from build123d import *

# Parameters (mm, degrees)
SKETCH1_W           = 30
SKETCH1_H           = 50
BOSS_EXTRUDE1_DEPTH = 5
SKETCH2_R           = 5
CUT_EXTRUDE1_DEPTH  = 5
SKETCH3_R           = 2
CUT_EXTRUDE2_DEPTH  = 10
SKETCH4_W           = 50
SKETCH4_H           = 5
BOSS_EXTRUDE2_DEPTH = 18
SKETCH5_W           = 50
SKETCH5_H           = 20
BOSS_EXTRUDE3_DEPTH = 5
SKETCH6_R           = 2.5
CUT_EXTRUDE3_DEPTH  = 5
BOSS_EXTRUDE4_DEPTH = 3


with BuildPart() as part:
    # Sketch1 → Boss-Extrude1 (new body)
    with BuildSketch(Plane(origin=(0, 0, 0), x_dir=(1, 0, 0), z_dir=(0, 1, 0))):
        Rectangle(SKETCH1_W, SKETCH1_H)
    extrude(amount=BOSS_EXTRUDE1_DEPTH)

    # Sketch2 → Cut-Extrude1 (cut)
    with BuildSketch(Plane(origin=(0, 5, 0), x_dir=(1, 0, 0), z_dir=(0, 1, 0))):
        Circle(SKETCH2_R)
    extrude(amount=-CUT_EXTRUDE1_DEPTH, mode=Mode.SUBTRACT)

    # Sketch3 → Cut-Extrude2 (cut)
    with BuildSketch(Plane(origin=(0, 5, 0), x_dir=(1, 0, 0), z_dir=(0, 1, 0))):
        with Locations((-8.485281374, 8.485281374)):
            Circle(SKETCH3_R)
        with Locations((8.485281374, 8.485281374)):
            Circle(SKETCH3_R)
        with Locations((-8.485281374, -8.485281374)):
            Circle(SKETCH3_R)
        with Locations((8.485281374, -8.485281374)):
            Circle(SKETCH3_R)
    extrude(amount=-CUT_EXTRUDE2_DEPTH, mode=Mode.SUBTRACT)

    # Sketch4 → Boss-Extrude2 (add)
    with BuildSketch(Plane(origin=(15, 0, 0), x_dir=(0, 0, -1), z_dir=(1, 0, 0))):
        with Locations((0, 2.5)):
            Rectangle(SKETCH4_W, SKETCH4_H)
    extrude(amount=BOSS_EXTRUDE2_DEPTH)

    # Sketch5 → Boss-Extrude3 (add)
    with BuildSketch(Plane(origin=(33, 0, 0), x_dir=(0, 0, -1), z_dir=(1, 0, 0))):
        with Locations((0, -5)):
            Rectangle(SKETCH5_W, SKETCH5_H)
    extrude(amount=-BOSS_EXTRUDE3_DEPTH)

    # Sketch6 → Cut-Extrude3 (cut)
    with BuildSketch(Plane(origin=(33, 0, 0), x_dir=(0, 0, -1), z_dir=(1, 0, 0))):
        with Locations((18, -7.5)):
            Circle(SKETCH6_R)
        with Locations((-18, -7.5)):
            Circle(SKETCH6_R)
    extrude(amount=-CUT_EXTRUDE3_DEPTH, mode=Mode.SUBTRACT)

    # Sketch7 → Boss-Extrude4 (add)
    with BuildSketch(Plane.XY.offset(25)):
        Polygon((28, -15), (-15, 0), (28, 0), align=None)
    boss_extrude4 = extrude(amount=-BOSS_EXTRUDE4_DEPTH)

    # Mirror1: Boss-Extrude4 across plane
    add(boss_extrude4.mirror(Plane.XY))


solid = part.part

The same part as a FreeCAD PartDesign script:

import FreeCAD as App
import Part
import Sketcher

V = App.Vector
Q = App.Units.Quantity


def add_polygon(sketch, points):
    """Adds a closed chain of lines whose ends are joined by coincident constraints."""
    first, n = sketch.GeometryCount, len(points)
    for a, b in zip(points, points[1:] + points[:1]):
        sketch.addGeometry(Part.LineSegment(App.Vector(*a, 0), App.Vector(*b, 0)), False)
    for i in range(n):
        sketch.addConstraint(Sketcher.Constraint("Coincident", first + i, 2, first + (i + 1) % n, 1))

doc = App.newDocument("Part")
body = doc.addObject("PartDesign::Body", "Body")

# Sketch on XZ plane
sketch1 = doc.addObject("Sketcher::SketchObject", "Sketch")
body.addObject(sketch1)
sketch1.AttachmentSupport = (doc.XZ_Plane, [""])
sketch1.MapMode = "FlatFace"
add_polygon(sketch1, [(-15, -25), (-15, 25), (15, 25), (15, -25)])  # lines 0-3
sketch1.addConstraint(Sketcher.Constraint("Vertical", 0))
sketch1.addConstraint(Sketcher.Constraint("Horizontal", 1))
sketch1.addConstraint(Sketcher.Constraint("Vertical", 2))
sketch1.addConstraint(Sketcher.Constraint("Horizontal", 3))
sketch1.addConstraint(Sketcher.Constraint("Symmetric", 0, 2, 2, 2, -1, 1))
sketch1.addConstraint(Sketcher.Constraint("DistanceX", 1, 1, 1, 2, Q("30 mm")))
sketch1.addConstraint(Sketcher.Constraint("DistanceY", 0, 1, 0, 2, Q("50 mm")))
pad1 = doc.addObject("PartDesign::Pad", "Pad")
body.addObject(pad1)
pad1.Profile = sketch1
pad1.Length = 5
pad1.Reversed = True

# Sketch on XZ plane
sketch2 = doc.addObject("Sketcher::SketchObject", "Sketch001")
body.addObject(sketch2)
sketch2.AttachmentSupport = (doc.XZ_Plane, [""])
sketch2.MapMode = "FlatFace"
sketch2.AttachmentOffset = App.Placement(V(0, 0, -5), App.Rotation())
sketch2.addGeometry(Part.Circle(V(0, 0, 0), V(0, 0, 1), 5), False)
sketch2.addConstraint(Sketcher.Constraint("Coincident", 0, 3, -1, 1))
sketch2.addConstraint(Sketcher.Constraint("Diameter", 0, Q("10 mm")))
pocket1 = doc.addObject("PartDesign::Pocket", "Pocket")
body.addObject(pocket1)
pocket1.Profile = sketch2
pocket1.Length = 5
pocket1.Reversed = True

# Sketch on XZ plane
sketch3 = doc.addObject("Sketcher::SketchObject", "Sketch002")
body.addObject(sketch3)
sketch3.AttachmentSupport = (doc.XZ_Plane, [""])
sketch3.MapMode = "FlatFace"
sketch3.AttachmentOffset = App.Placement(V(0, 0, -5), App.Rotation())
sketch3.addGeometry(Part.Circle(V(-8.5, -8.5, 0), V(0, 0, 1), 2), False)
sketch3.addGeometry(Part.Circle(V(8.5, -8.5, 0), V(0, 0, 1), 2), False)
sketch3.addGeometry(Part.Circle(V(-8.5, 8.5, 0), V(0, 0, 1), 2), False)
sketch3.addGeometry(Part.Circle(V(8.5, 8.5, 0), V(0, 0, 1), 2), False)
sketch3.addConstraint(Sketcher.Constraint("Equal", 0, 1))
sketch3.addConstraint(Sketcher.Constraint("Equal", 1, 2))
sketch3.addConstraint(Sketcher.Constraint("Equal", 2, 3))
sketch3.addConstraint(Sketcher.Constraint("Symmetric", 1, 3, 2, 3, -1, 1))
sketch3.addConstraint(Sketcher.Constraint("Symmetric", 0, 3, 3, 3, -1, 1))
sketch3.addConstraint(Sketcher.Constraint("Symmetric", 0, 3, 1, 3, -2))
sketch3.addConstraint(Sketcher.Constraint("Diameter", 0, Q("4 mm")))
sketch3.addConstraint(Sketcher.Constraint("DistanceX", 0, 3, -1, 1, Q("8.485281 mm")))
sketch3.addConstraint(Sketcher.Constraint("DistanceY", 0, 3, -1, 1, Q("8.485281 mm")))
pocket2 = doc.addObject("PartDesign::Pocket", "Pocket001")
body.addObject(pocket2)
pocket2.Profile = sketch3
pocket2.Length = 10
pocket2.Reversed = True

# Sketch on YZ plane
sketch4 = doc.addObject("Sketcher::SketchObject", "Sketch003")
body.addObject(sketch4)
sketch4.AttachmentSupport = (doc.YZ_Plane, [""])
sketch4.MapMode = "FlatFace"
sketch4.AttachmentOffset = App.Placement(V(0, 0, 15), App.Rotation())
add_polygon(sketch4, [(5, 25), (0, 25), (0, -25), (5, -25)])  # lines 0-3
sketch4.addConstraint(Sketcher.Constraint("Horizontal", 0))
sketch4.addConstraint(Sketcher.Constraint("Vertical", 1))
sketch4.addConstraint(Sketcher.Constraint("Horizontal", 2))
sketch4.addConstraint(Sketcher.Constraint("Vertical", 3))
sketch4.addConstraint(Sketcher.Constraint("Symmetric", 0, 2, 1, 2, -1, 1))
sketch4.addConstraint(Sketcher.Constraint("DistanceX", 0, 2, 0, 1, Q("5 mm")))
sketch4.addConstraint(Sketcher.Constraint("DistanceY", 1, 2, 1, 1, Q("50 mm")))
pad2 = doc.addObject("PartDesign::Pad", "Pad001")
body.addObject(pad2)
pad2.Profile = sketch4
pad2.Length = 18

# Sketch on YZ plane
sketch5 = doc.addObject("Sketcher::SketchObject", "Sketch004")
body.addObject(sketch5)
sketch5.AttachmentSupport = (doc.YZ_Plane, [""])
sketch5.MapMode = "FlatFace"
sketch5.AttachmentOffset = App.Placement(V(0, 0, 33), App.Rotation())
add_polygon(sketch5, [(5, 25), (-15, 25), (-15, -25), (5, -25)])  # lines 0-3
sketch5.addConstraint(Sketcher.Constraint("Horizontal", 0))
sketch5.addConstraint(Sketcher.Constraint("Vertical", 1))
sketch5.addConstraint(Sketcher.Constraint("Horizontal", 2))
sketch5.addConstraint(Sketcher.Constraint("Vertical", 3))
sketch5.addConstraint(Sketcher.Constraint("DistanceX", 0, 2, 0, 1, Q("20 mm")))
sketch5.addConstraint(Sketcher.Constraint("DistanceY", 1, 2, 1, 1, Q("50 mm")))
sketch5.addConstraint(Sketcher.Constraint("DistanceX", 0, 2, -1, 1, Q("15 mm")))
sketch5.addConstraint(Sketcher.Constraint("DistanceY", -1, 1, 0, 2, Q("25 mm")))
pad3 = doc.addObject("PartDesign::Pad", "Pad002")
body.addObject(pad3)
pad3.Profile = sketch5
pad3.Length = 5
pad3.Reversed = True

# Sketch on YZ plane
sketch6 = doc.addObject("Sketcher::SketchObject", "Sketch005")
body.addObject(sketch6)
sketch6.AttachmentSupport = (doc.YZ_Plane, [""])
sketch6.MapMode = "FlatFace"
sketch6.AttachmentOffset = App.Placement(V(0, 0, 33), App.Rotation())
sketch6.addGeometry(Part.Circle(V(-7.5, -18, 0), V(0, 0, 1), 2.5), False)
sketch6.addGeometry(Part.Circle(V(-7.5, 18, 0), V(0, 0, 1), 2.5), False)
sketch6.addConstraint(Sketcher.Constraint("Equal", 0, 1))
sketch6.addConstraint(Sketcher.Constraint("Symmetric", 0, 3, 1, 3, -1))
sketch6.addConstraint(Sketcher.Constraint("Diameter", 0, Q("5 mm")))
sketch6.addConstraint(Sketcher.Constraint("DistanceY", 0, 3, -1, 1, Q("18 mm")))
sketch6.addConstraint(Sketcher.Constraint("DistanceX", 0, 3, -1, 1, Q("7.5 mm")))
pocket3 = doc.addObject("PartDesign::Pocket", "Pocket002")
body.addObject(pocket3)
pocket3.Profile = sketch6
pocket3.Length = 5

# Sketch on XY plane
sketch7 = doc.addObject("Sketcher::SketchObject", "Sketch006")
body.addObject(sketch7)
sketch7.AttachmentSupport = (doc.XY_Plane, [""])
sketch7.MapMode = "FlatFace"
sketch7.AttachmentOffset = App.Placement(V(0, 0, 25), App.Rotation())
add_polygon(sketch7, [(-15, 0), (28, -15), (28, 0)])  # lines 0-2
sketch7.addConstraint(Sketcher.Constraint("Vertical", 1))
sketch7.addConstraint(Sketcher.Constraint("Horizontal", 2))
sketch7.addConstraint(Sketcher.Constraint("PointOnObject", 1, 2, -1))
sketch7.addConstraint(Sketcher.Constraint("DistanceX", 2, 2, 2, 1, Q("43 mm")))
sketch7.addConstraint(Sketcher.Constraint("DistanceY", 1, 1, 1, 2, Q("15 mm")))
sketch7.addConstraint(Sketcher.Constraint("DistanceX", -1, 1, 0, 2, Q("28 mm")))
pad4 = doc.addObject("PartDesign::Pad", "Pad003")
body.addObject(pad4)
pad4.Profile = sketch7
pad4.Length = 3
pad4.Reversed = True
doc.recompute()

mirrored = doc.addObject("PartDesign::Mirrored", "Mirrored")
body.addObject(mirrored)
mirrored.Originals = [pad4]
mirrored.MirrorPlane = (doc.XY_Plane, [""])
body.Tip = mirrored

doc.recompute()
